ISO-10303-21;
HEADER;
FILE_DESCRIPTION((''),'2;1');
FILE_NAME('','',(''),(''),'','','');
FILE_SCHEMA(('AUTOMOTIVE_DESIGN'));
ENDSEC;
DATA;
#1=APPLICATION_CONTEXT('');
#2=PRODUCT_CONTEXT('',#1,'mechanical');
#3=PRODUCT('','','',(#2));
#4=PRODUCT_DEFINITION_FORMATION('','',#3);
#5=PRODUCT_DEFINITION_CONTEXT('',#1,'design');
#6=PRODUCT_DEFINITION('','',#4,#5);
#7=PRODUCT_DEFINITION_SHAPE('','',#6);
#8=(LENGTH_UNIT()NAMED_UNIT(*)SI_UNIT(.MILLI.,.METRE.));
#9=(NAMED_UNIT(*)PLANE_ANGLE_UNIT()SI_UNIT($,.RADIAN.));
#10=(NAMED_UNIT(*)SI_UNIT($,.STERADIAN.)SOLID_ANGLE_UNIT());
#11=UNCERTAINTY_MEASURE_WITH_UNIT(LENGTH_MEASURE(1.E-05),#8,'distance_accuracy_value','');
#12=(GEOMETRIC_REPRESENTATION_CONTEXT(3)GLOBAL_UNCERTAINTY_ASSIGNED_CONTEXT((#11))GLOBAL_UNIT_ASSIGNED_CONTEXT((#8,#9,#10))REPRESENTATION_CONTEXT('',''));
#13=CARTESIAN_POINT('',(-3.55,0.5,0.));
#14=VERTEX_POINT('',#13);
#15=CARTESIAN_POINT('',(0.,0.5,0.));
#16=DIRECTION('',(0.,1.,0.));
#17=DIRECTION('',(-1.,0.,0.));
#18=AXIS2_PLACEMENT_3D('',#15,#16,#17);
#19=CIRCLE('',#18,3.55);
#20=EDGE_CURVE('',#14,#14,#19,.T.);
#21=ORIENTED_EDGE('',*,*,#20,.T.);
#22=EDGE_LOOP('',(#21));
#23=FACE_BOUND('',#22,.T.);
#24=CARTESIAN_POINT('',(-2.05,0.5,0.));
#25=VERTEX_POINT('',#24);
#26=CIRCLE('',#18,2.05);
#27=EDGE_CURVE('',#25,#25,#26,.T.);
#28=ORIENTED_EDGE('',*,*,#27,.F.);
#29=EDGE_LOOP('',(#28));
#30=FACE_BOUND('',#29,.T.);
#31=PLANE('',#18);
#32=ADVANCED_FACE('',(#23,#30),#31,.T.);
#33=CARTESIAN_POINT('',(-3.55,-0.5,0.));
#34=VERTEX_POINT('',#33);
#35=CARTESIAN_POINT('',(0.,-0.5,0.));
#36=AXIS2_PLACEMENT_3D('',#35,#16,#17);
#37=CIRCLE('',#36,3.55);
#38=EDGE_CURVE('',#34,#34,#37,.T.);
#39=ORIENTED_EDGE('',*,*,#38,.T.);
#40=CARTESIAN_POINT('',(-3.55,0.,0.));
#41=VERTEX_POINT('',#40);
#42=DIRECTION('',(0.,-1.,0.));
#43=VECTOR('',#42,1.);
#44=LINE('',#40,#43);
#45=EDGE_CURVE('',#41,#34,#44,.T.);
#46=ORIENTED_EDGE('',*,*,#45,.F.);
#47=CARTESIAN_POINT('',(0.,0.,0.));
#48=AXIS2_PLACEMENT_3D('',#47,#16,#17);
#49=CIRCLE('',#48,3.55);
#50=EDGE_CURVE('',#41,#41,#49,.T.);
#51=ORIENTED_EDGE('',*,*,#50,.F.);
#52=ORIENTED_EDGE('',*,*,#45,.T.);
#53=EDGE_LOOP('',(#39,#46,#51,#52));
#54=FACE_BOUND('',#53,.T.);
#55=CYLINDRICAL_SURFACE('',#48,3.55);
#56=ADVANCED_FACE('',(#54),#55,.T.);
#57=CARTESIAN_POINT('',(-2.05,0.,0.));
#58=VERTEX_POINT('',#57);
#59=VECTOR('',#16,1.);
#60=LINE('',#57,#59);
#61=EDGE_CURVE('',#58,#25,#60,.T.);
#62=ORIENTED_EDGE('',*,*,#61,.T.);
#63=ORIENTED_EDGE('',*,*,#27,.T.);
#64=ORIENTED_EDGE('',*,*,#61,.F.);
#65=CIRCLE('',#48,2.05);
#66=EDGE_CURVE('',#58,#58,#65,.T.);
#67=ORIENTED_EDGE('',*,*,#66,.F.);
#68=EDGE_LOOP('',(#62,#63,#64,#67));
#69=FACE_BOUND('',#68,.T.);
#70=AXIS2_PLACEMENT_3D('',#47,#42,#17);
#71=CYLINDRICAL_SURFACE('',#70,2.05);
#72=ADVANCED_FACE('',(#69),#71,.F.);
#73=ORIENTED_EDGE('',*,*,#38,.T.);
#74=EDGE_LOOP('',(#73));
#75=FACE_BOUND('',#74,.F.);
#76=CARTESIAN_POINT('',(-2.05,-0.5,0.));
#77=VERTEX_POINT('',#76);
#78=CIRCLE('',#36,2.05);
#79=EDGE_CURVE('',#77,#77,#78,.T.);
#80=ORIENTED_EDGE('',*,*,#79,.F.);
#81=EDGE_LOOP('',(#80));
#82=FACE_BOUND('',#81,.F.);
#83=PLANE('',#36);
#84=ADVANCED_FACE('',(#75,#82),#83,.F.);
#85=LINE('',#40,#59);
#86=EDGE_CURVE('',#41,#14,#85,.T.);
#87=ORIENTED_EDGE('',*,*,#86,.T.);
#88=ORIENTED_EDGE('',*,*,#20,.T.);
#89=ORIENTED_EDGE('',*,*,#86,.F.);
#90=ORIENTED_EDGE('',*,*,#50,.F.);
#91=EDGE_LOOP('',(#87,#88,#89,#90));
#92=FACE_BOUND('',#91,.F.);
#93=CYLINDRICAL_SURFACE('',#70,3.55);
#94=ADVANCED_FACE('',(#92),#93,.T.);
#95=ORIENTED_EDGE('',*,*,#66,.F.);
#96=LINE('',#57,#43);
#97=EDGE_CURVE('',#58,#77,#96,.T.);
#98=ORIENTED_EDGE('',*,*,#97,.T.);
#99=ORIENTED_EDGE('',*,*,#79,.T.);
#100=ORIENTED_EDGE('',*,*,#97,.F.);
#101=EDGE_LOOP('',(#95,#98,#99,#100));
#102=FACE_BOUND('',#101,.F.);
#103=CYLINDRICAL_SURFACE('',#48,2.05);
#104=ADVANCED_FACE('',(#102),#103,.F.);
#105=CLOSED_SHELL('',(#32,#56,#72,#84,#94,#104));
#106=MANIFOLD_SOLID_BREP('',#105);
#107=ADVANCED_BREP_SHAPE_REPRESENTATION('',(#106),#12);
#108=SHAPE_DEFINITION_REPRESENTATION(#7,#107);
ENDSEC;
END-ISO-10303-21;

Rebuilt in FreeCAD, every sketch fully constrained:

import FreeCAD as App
import Part
import Sketcher
from FreeCAD import Vector
Q = App.Units.Quantity

doc = App.newDocument("Part")
params = doc.addObject("Spreadsheet::Sheet", "Params")
for row, (alias, value) in enumerate([
    ("sketch1_diameter", "7.1 mm"),
    ("sketch1_diameter2", "4.1 mm"),
    ("pad1_length", "1 mm"),
], start=1):
    params.set(f"A{row}", alias)
    params.set(f"B{row}", "=" + value)
    params.setAlias(f"B{row}", alias)

body = doc.addObject("PartDesign::Body", "Body")

# Sketch on XZ plane
sketch1 = body.newObject("Sketcher::SketchObject", "Sketch")
sketch1.AttachmentSupport = (doc.getObject("XZ_Plane"), [""])
sketch1.MapMode = "FlatFace"
sketch1.addGeometry(Part.Circle(Vector(0, 0, 0), Vector(0, 0, 1), 3.5), False)
sketch1.addGeometry(Part.Circle(Vector(0, 0, 0), Vector(0, 0, 1), 2), False)
sketch1.addConstraint(Sketcher.Constraint("Coincident", 0, 3, -1, 1))
sketch1.addConstraint(Sketcher.Constraint("Coincident", 1, 3, -1, 1))
sketch1.addConstraint(Sketcher.Constraint("Diameter", 0, Q("7.1 mm")))
sketch1.addConstraint(Sketcher.Constraint("Diameter", 1, Q("4.1 mm")))
sketch1.setExpression("Constraints[2]", "Params.sketch1_diameter")
sketch1.setExpression("Constraints[3]", "Params.sketch1_diameter2")
pad1 = body.newObject("PartDesign::Pad", "Pad")
pad1.Profile = sketch1
pad1.setExpression("Length", "Params.pad1_length")
pad1.Midplane = True

doc.recompute()
